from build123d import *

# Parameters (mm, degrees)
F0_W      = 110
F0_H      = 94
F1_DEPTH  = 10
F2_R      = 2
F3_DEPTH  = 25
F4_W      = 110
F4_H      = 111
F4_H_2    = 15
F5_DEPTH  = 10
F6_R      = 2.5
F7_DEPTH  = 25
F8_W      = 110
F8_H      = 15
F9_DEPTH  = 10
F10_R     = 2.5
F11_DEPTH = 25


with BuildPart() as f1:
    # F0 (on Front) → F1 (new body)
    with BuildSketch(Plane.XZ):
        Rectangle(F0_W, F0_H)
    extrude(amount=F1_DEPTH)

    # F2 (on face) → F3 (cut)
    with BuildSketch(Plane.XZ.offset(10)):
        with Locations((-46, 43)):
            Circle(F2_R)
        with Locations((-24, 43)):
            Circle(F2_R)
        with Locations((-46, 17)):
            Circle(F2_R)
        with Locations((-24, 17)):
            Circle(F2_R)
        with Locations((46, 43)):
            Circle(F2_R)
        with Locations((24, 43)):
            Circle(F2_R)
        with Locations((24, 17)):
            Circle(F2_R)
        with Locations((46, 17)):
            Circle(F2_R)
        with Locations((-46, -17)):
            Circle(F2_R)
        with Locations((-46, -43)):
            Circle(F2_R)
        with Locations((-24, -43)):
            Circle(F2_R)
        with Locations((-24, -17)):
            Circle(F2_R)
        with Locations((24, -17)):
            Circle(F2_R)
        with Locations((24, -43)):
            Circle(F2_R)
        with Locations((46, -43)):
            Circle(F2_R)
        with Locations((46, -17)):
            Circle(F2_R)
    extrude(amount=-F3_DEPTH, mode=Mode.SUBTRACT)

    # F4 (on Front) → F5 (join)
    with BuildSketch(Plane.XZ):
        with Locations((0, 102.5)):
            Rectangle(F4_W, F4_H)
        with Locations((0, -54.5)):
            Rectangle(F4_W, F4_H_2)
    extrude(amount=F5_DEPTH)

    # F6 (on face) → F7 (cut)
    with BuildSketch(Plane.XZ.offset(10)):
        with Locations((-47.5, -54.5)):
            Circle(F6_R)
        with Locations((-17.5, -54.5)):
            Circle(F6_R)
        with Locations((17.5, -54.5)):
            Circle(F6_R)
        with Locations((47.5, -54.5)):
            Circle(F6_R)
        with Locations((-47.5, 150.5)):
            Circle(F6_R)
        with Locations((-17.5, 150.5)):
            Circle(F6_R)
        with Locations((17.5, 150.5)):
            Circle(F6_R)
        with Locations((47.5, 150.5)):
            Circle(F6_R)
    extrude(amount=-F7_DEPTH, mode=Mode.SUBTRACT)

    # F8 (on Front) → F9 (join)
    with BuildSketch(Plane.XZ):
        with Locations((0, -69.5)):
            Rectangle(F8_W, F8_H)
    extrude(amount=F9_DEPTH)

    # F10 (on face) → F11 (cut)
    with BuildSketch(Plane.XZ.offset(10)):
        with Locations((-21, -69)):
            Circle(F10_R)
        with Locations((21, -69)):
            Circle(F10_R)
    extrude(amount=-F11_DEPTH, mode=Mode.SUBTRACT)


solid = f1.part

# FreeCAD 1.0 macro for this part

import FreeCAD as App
import Part
import Sketcher
from FreeCAD import Vector
Q = App.Units.Quantity


def add_polygon(sketch, points):
    """Adds a closed chain of lines whose ends are joined by coincident constraints."""
    first, n = sketch.GeometryCount, len(points)
    for a, b in zip(points, points[1:] + points[:1]):
        sketch.addGeometry(Part.LineSegment(App.Vector(*a, 0), App.Vector(*b, 0)), False)
    for i in range(n):
        sketch.addConstraint(Sketcher.Constraint("Coincident", first + i, 2, first + (i + 1) % n, 1))

doc = App.newDocument("Part")
body = doc.addObject("PartDesign::Body", "Body")

sketch1 = body.newObject("Sketcher::SketchObject", "Sketch")
sketch1.AttachmentSupport = (doc.getObject("XZ_Plane"), [""])
sketch1.MapMode = "FlatFace"
add_polygon(sketch1, [(-55, 47), (-55, -47), (55, -47), (55, 47)])
sketch1.addConstraint(Sketcher.Constraint("Vertical", 0))
sketch1.addConstraint(Sketcher.Constraint("Horizontal", 1))
sketch1.addConstraint(Sketcher.Constraint("Vertical", 2))
sketch1.addConstraint(Sketcher.Constraint("Horizontal", 3))
sketch1.addConstraint(Sketcher.Constraint("Symmetric", 0, 2, 2, 2, -1, 1))
sketch1.addConstraint(Sketcher.Constraint("DistanceX", 1, 1, 1, 2, Q("110 mm")))
sketch1.addConstraint(Sketcher.Constraint("DistanceY", 0, 2, 0, 1, Q("94 mm")))
pad1 = body.newObject("PartDesign::Pad", "Pad")
pad1.Profile = sketch1
pad1.Length = 10

sketch2 = body.newObject("Sketcher::SketchObject", "Sketch001")
sketch2.AttachmentSupport = (doc.getObject("XZ_Plane"), [""])
sketch2.MapMode = "FlatFace"
sketch2.AttachmentOffset = App.Placement(Vector(0, 0, 10), App.Rotation())
sketch2.addGeometry(Part.Circle(Vector(-46, 43, 0), Vector(0, 0, 1), 2), False)
sketch2.addGeometry(Part.Circle(Vector(-24, 43, 0), Vector(0, 0, 1), 2), False)
sketch2.addGeometry(Part.Circle(Vector(-46, 17, 0), Vector(0, 0, 1), 2), False)
sketch2.addGeometry(Part.Circle(Vector(-24, 17, 0), Vector(0, 0, 1), 2), False)
sketch2.addGeometry(Part.Circle(Vector(46, 43, 0), Vector(0, 0, 1), 2), False)
sketch2.addGeometry(Part.Circle(Vector(24, 43, 0), Vector(0, 0, 1), 2), False)
sketch2.addGeometry(Part.Circle(Vector(24, 17, 0), Vector(0, 0, 1), 2), False)
sketch2.addGeometry(Part.Circle(Vector(46, 17, 0), Vector(0, 0, 1), 2), False)
sketch2.addGeometry(Part.Circle(Vector(-46, -17, 0), Vector(0, 0, 1), 2), False)
sketch2.addGeometry(Part.Circle(Vector(-46, -43, 0), Vector(0, 0, 1), 2), False)
sketch2.addGeometry(Part.Circle(Vector(-24, -43, 0), Vector(0, 0, 1), 2), False)
sketch2.addGeometry(Part.Circle(Vector(-24, -17, 0), Vector(0, 0, 1), 2), False)
sketch2.addGeometry(Part.Circle(Vector(24, -17, 0), Vector(0, 0, 1), 2), False)
sketch2.addGeometry(Part.Circle(Vector(24, -43, 0), Vector(0, 0, 1), 2), False)
sketch2.addGeometry(Part.Circle(Vector(46, -43, 0), Vector(0, 0, 1), 2), False)
sketch2.addGeometry(Part.Circle(Vector(46, -17, 0), Vector(0, 0, 1), 2), False)
sketch2.addConstraint(Sketcher.Constraint("Equal", 0, 1))
sketch2.addConstraint(Sketcher.Constraint("Equal", 1, 2))
sketch2.addConstraint(Sketcher.Constraint("Equal", 2, 3))
sketch2.addConstraint(Sketcher.Constraint("Equal", 3, 4))
sketch2.addConstraint(Sketcher.Constraint("Equal", 4, 5))
sketch2.addConstraint(Sketcher.Constraint("Equal", 5, 6))
sketch2.addConstraint(Sketcher.Constraint("Equal", 6, 7))
sketch2.addConstraint(Sketcher.Constraint("Equal", 7, 8))
sketch2.addConstraint(Sketcher.Constraint("Equal", 8, 9))
sketch2.addConstraint(Sketcher.Constraint("Equal", 9, 10))
sketch2.addConstraint(Sketcher.Constraint("Equal", 10, 11))
sketch2.addConstraint(Sketcher.Constraint("Equal", 11, 12))
sketch2.addConstraint(Sketcher.Constraint("Equal", 12, 13))
sketch2.addConstraint(Sketcher.Constraint("Equal", 13, 14))
sketch2.addConstraint(Sketcher.Constraint("Equal", 14, 15))
sketch2.addConstraint(Sketcher.Constraint("Symmetric", 7, 3, 8, 3, -1, 1))
sketch2.addConstraint(Sketcher.Constraint("Symmetric", 4, 3, 9, 3, -1, 1))
sketch2.addConstraint(Sketcher.Constraint("Symmetric", 5, 3, 10, 3, -1, 1))
sketch2.addConstraint(Sketcher.Constraint("Symmetric", 6, 3, 11, 3, -1, 1))
sketch2.addConstraint(Sketcher.Constraint("Symmetric", 3, 3, 12, 3, -1, 1))
sketch2.addConstraint(Sketcher.Constraint("Symmetric", 1, 3, 13, 3, -1, 1))
sketch2.addConstraint(Sketcher.Constraint("Symmetric", 0, 3, 14, 3, -1, 1))
sketch2.addConstraint(Sketcher.Constraint("Symmetric", 2, 3, 15, 3, -1, 1))
sketch2.addConstraint(Sketcher.Constraint("Symmetric", 0, 3, 4, 3, -2))
sketch2.addConstraint(Sketcher.Constraint("Symmetric", 1, 3, 5, 3, -2))
sketch2.addConstraint(Sketcher.Constraint("Symmetric", 3, 3, 6, 3, -2))
sketch2.addConstraint(Sketcher.Constraint("Symmetric", 2, 3, 7, 3, -2))
sketch2.addConstraint(Sketcher.Constraint("Horizontal", 0, 3, 1, 3))
sketch2.addConstraint(Sketcher.Constraint("Horizontal", 2, 3, 3, 3))
sketch2.addConstraint(Sketcher.Constraint("Vertical", 0, 3, 2, 3))
sketch2.addConstraint(Sketcher.Constraint("Vertical", 1, 3, 3, 3))
sketch2.addConstraint(Sketcher.Constraint("Diameter", 0, Q("4 mm")))
sketch2.addConstraint(Sketcher.Constraint("DistanceX", 0, 3, -1, 1, Q("46 mm")))
sketch2.addConstraint(Sketcher.Constraint("DistanceY", -1, 1, 0, 3, Q("43 mm")))
sketch2.addConstraint(Sketcher.Constraint("DistanceX", 1, 3, -1, 1, Q("24 mm")))
sketch2.addConstraint(Sketcher.Constraint("DistanceY", -1, 1, 2, 3, Q("17 mm")))
pocket1 = body.newObject("PartDesign::Pocket", "Pocket")
pocket1.Profile = sketch2
pocket1.Length = 25

sketch3 = body.newObject("Sketcher::SketchObject", "Sketch002")
sketch3.AttachmentSupport = (doc.getObject("XZ_Plane"), [""])
sketch3.MapMode = "FlatFace"
add_polygon(sketch3, [(-55, 158), (-55, 47), (55, 47), (55, 158)])
add_polygon(sketch3, [(-55, -47), (-55, -62), (55, -62), (55, -47)])
sketch3.addConstraint(Sketcher.Constraint("Vertical", 0))
sketch3.addConstraint(Sketcher.Constraint("Horizontal", 1))
sketch3.addConstraint(Sketcher.Constraint("Vertical", 2))
sketch3.addConstraint(Sketcher.Constraint("Horizontal", 3))
sketch3.addConstraint(Sketcher.Constraint("Vertical", 4))
sketch3.addConstraint(Sketcher.Constraint("Horizontal", 5))
sketch3.addConstraint(Sketcher.Constraint("Vertical", 6))
sketch3.addConstraint(Sketcher.Constraint("Horizontal", 7))
sketch3.addConstraint(Sketcher.Constraint("Symmetric", 0, 2, 6, 2, -1, 1))
sketch3.addConstraint(Sketcher.Constraint("Vertical", 3, 2, 4, 2))
sketch3.addConstraint(Sketcher.Constraint("Vertical", 2, 2, 5, 2))
sketch3.addConstraint(Sketcher.Constraint("DistanceX", 1, 1, 1, 2, Q("110 mm")))
sketch3.addConstraint(Sketcher.Constraint("DistanceY", 0, 2, 0, 1, Q("111 mm")))
sketch3.addConstraint(Sketcher.Constraint("DistanceY", 4, 2, 4, 1, Q("15 mm")))
sketch3.addConstraint(Sketcher.Constraint("DistanceY", -1, 1, 0, 2, Q("47 mm")))
pad2 = body.newObject("PartDesign::Pad", "Pad001")
pad2.Profile = sketch3
pad2.Length = 10

sketch4 = body.newObject("Sketcher::SketchObject", "Sketch003")
sketch4.AttachmentSupport = (doc.getObject("XZ_Plane"), [""])
sketch4.MapMode = "FlatFace"
sketch4.AttachmentOffset = App.Placement(Vector(0, 0, 10), App.Rotation())
sketch4.addGeometry(Part.Circle(Vector(-47.5, -54.5, 0), Vector(0, 0, 1), 2.5), False)
sketch4.addGeometry(Part.Circle(Vector(-17.5, -54.5, 0), Vector(0, 0, 1), 2.5), False)
sketch4.addGeometry(Part.Circle(Vector(17.5, -54.5, 0), Vector(0, 0, 1), 2.5), False)
sketch4.addGeometry(Part.Circle(Vector(47.5, -54.5, 0), Vector(0, 0, 1), 2.5), False)
sketch4.addGeometry(Part.Circle(Vector(-47.5, 150.5, 0), Vector(0, 0, 1), 2.5), False)
sketch4.addGeometry(Part.Circle(Vector(-17.5, 150.5, 0), Vector(0, 0, 1), 2.5), False)
sketch4.addGeometry(Part.Circle(Vector(17.5, 150.5, 0), Vector(0, 0, 1), 2.5), False)
sketch4.addGeometry(Part.Circle(Vector(47.5, 150.5, 0), Vector(0, 0, 1), 2.5), False)
sketch4.addConstraint(Sketcher.Constraint("Equal", 0, 1))
sketch4.addConstraint(Sketcher.Constraint("Equal", 1, 2))
sketch4.addConstraint(Sketcher.Constraint("Equal", 2, 3))
sketch4.addConstraint(Sketcher.Constraint("Equal", 3, 4))
sketch4.addConstraint(Sketcher.Constraint("Equal", 4, 5))
sketch4.addConstraint(Sketcher.Constraint("Equal", 5, 6))
sketch4.addConstraint(Sketcher.Constraint("Equal", 6, 7))
sketch4.addConstraint(Sketcher.Constraint("Symmetric", 1, 3, 2, 3, -2))
sketch4.addConstraint(Sketcher.Constraint("Symmetric", 0, 3, 3, 3, -2))
sketch4.addConstraint(Sketcher.Constraint("Symmetric", 5, 3, 6, 3, -2))
sketch4.addConstraint(Sketcher.Constraint("Symmetric", 4, 3, 7, 3, -2))
sketch4.addConstraint(Sketcher.Constraint("Horizontal", 0, 3, 1, 3))
sketch4.addConstraint(Sketcher.Constraint("Horizontal", 4, 3, 5, 3))
sketch4.addConstraint(Sketcher.Constraint("Vertical", 0, 3, 4, 3))
sketch4.addConstraint(Sketcher.Constraint("Vertical", 1, 3, 5, 3))
sketch4.addConstraint(Sketcher.Constraint("Diameter", 0, Q("5 mm")))
sketch4.addConstraint(Sketcher.Constraint("DistanceX", 0, 3, 1, 3, Q("30 mm")))
sketch4.addConstraint(Sketcher.Constraint("DistanceX", 1, 3, 2, 3, Q("35 mm")))
sketch4.addConstraint(Sketcher.Constraint("DistanceY", 0, 3, 4, 3, Q("205 mm")))
sketch4.addConstraint(Sketcher.Constraint("DistanceY", 0, 3, -1, 1, Q("54.5 mm")))
pocket2 = body.newObject("PartDesign::Pocket", "Pocket001")
pocket2.Profile = sketch4
pocket2.Length = 25

sketch5 = body.newObject("Sketcher::SketchObject", "Sketch004")
sketch5.AttachmentSupport = (doc.getObject("XZ_Plane"), [""])
sketch5.MapMode = "FlatFace"
add_polygon(sketch5, [(-55, -62), (-55, -77), (55, -77), (55, -62)])
sketch5.addConstraint(Sketcher.Constraint("Vertical", 0))
sketch5.addConstraint(Sketcher.Constraint("Horizontal", 1))
sketch5.addConstraint(Sketcher.Constraint("Vertical", 2))
sketch5.addConstraint(Sketcher.Constraint("Horizontal", 3))
sketch5.addConstraint(Sketcher.Constraint("DistanceX", 1, 1, 1, 2, Q("110 mm")))
sketch5.addConstraint(Sketcher.Constraint("DistanceY", 0, 2, 0, 1, Q("15 mm")))
sketch5.addConstraint(Sketcher.Constraint("DistanceX", 0, 2, -1, 1, Q("55 mm")))
sketch5.addConstraint(Sketcher.Constraint("DistanceY", 0, 2, -1, 1, Q("77 mm")))
pad3 = body.newObject("PartDesign::Pad", "Pad002")
pad3.Profile = sketch5
pad3.Length = 10

sketch6 = body.newObject("Sketcher::SketchObject", "Sketch005")
sketch6.AttachmentSupport = (doc.getObject("XZ_Plane"), [""])
sketch6.MapMode = "FlatFace"
sketch6.AttachmentOffset = App.Placement(Vector(0, 0, 10), App.Rotation())
sketch6.addGeometry(Part.Circle(Vector(-21, -69, 0), Vector(0, 0, 1), 2.5), False)
sketch6.addGeometry(Part.Circle(Vector(21, -69, 0), Vector(0, 0, 1), 2.5), False)
sketch6.addConstraint(Sketcher.Constraint("Equal", 0, 1))
sketch6.addConstraint(Sketcher.Constraint("Symmetric", 0, 3, 1, 3, -2))
sketch6.addConstraint(Sketcher.Constraint("Diameter", 0, Q("5 mm")))
sketch6.addConstraint(Sketcher.Constraint("DistanceX", 0, 3, -1, 1, Q("21 mm")))
sketch6.addConstraint(Sketcher.Constraint("DistanceY", 0, 3, -1, 1, Q("69 mm")))
pocket3 = body.newObject("PartDesign::Pocket", "Pocket002")
pocket3.Profile = sketch6
pocket3.Length = 25

doc.recompute()
